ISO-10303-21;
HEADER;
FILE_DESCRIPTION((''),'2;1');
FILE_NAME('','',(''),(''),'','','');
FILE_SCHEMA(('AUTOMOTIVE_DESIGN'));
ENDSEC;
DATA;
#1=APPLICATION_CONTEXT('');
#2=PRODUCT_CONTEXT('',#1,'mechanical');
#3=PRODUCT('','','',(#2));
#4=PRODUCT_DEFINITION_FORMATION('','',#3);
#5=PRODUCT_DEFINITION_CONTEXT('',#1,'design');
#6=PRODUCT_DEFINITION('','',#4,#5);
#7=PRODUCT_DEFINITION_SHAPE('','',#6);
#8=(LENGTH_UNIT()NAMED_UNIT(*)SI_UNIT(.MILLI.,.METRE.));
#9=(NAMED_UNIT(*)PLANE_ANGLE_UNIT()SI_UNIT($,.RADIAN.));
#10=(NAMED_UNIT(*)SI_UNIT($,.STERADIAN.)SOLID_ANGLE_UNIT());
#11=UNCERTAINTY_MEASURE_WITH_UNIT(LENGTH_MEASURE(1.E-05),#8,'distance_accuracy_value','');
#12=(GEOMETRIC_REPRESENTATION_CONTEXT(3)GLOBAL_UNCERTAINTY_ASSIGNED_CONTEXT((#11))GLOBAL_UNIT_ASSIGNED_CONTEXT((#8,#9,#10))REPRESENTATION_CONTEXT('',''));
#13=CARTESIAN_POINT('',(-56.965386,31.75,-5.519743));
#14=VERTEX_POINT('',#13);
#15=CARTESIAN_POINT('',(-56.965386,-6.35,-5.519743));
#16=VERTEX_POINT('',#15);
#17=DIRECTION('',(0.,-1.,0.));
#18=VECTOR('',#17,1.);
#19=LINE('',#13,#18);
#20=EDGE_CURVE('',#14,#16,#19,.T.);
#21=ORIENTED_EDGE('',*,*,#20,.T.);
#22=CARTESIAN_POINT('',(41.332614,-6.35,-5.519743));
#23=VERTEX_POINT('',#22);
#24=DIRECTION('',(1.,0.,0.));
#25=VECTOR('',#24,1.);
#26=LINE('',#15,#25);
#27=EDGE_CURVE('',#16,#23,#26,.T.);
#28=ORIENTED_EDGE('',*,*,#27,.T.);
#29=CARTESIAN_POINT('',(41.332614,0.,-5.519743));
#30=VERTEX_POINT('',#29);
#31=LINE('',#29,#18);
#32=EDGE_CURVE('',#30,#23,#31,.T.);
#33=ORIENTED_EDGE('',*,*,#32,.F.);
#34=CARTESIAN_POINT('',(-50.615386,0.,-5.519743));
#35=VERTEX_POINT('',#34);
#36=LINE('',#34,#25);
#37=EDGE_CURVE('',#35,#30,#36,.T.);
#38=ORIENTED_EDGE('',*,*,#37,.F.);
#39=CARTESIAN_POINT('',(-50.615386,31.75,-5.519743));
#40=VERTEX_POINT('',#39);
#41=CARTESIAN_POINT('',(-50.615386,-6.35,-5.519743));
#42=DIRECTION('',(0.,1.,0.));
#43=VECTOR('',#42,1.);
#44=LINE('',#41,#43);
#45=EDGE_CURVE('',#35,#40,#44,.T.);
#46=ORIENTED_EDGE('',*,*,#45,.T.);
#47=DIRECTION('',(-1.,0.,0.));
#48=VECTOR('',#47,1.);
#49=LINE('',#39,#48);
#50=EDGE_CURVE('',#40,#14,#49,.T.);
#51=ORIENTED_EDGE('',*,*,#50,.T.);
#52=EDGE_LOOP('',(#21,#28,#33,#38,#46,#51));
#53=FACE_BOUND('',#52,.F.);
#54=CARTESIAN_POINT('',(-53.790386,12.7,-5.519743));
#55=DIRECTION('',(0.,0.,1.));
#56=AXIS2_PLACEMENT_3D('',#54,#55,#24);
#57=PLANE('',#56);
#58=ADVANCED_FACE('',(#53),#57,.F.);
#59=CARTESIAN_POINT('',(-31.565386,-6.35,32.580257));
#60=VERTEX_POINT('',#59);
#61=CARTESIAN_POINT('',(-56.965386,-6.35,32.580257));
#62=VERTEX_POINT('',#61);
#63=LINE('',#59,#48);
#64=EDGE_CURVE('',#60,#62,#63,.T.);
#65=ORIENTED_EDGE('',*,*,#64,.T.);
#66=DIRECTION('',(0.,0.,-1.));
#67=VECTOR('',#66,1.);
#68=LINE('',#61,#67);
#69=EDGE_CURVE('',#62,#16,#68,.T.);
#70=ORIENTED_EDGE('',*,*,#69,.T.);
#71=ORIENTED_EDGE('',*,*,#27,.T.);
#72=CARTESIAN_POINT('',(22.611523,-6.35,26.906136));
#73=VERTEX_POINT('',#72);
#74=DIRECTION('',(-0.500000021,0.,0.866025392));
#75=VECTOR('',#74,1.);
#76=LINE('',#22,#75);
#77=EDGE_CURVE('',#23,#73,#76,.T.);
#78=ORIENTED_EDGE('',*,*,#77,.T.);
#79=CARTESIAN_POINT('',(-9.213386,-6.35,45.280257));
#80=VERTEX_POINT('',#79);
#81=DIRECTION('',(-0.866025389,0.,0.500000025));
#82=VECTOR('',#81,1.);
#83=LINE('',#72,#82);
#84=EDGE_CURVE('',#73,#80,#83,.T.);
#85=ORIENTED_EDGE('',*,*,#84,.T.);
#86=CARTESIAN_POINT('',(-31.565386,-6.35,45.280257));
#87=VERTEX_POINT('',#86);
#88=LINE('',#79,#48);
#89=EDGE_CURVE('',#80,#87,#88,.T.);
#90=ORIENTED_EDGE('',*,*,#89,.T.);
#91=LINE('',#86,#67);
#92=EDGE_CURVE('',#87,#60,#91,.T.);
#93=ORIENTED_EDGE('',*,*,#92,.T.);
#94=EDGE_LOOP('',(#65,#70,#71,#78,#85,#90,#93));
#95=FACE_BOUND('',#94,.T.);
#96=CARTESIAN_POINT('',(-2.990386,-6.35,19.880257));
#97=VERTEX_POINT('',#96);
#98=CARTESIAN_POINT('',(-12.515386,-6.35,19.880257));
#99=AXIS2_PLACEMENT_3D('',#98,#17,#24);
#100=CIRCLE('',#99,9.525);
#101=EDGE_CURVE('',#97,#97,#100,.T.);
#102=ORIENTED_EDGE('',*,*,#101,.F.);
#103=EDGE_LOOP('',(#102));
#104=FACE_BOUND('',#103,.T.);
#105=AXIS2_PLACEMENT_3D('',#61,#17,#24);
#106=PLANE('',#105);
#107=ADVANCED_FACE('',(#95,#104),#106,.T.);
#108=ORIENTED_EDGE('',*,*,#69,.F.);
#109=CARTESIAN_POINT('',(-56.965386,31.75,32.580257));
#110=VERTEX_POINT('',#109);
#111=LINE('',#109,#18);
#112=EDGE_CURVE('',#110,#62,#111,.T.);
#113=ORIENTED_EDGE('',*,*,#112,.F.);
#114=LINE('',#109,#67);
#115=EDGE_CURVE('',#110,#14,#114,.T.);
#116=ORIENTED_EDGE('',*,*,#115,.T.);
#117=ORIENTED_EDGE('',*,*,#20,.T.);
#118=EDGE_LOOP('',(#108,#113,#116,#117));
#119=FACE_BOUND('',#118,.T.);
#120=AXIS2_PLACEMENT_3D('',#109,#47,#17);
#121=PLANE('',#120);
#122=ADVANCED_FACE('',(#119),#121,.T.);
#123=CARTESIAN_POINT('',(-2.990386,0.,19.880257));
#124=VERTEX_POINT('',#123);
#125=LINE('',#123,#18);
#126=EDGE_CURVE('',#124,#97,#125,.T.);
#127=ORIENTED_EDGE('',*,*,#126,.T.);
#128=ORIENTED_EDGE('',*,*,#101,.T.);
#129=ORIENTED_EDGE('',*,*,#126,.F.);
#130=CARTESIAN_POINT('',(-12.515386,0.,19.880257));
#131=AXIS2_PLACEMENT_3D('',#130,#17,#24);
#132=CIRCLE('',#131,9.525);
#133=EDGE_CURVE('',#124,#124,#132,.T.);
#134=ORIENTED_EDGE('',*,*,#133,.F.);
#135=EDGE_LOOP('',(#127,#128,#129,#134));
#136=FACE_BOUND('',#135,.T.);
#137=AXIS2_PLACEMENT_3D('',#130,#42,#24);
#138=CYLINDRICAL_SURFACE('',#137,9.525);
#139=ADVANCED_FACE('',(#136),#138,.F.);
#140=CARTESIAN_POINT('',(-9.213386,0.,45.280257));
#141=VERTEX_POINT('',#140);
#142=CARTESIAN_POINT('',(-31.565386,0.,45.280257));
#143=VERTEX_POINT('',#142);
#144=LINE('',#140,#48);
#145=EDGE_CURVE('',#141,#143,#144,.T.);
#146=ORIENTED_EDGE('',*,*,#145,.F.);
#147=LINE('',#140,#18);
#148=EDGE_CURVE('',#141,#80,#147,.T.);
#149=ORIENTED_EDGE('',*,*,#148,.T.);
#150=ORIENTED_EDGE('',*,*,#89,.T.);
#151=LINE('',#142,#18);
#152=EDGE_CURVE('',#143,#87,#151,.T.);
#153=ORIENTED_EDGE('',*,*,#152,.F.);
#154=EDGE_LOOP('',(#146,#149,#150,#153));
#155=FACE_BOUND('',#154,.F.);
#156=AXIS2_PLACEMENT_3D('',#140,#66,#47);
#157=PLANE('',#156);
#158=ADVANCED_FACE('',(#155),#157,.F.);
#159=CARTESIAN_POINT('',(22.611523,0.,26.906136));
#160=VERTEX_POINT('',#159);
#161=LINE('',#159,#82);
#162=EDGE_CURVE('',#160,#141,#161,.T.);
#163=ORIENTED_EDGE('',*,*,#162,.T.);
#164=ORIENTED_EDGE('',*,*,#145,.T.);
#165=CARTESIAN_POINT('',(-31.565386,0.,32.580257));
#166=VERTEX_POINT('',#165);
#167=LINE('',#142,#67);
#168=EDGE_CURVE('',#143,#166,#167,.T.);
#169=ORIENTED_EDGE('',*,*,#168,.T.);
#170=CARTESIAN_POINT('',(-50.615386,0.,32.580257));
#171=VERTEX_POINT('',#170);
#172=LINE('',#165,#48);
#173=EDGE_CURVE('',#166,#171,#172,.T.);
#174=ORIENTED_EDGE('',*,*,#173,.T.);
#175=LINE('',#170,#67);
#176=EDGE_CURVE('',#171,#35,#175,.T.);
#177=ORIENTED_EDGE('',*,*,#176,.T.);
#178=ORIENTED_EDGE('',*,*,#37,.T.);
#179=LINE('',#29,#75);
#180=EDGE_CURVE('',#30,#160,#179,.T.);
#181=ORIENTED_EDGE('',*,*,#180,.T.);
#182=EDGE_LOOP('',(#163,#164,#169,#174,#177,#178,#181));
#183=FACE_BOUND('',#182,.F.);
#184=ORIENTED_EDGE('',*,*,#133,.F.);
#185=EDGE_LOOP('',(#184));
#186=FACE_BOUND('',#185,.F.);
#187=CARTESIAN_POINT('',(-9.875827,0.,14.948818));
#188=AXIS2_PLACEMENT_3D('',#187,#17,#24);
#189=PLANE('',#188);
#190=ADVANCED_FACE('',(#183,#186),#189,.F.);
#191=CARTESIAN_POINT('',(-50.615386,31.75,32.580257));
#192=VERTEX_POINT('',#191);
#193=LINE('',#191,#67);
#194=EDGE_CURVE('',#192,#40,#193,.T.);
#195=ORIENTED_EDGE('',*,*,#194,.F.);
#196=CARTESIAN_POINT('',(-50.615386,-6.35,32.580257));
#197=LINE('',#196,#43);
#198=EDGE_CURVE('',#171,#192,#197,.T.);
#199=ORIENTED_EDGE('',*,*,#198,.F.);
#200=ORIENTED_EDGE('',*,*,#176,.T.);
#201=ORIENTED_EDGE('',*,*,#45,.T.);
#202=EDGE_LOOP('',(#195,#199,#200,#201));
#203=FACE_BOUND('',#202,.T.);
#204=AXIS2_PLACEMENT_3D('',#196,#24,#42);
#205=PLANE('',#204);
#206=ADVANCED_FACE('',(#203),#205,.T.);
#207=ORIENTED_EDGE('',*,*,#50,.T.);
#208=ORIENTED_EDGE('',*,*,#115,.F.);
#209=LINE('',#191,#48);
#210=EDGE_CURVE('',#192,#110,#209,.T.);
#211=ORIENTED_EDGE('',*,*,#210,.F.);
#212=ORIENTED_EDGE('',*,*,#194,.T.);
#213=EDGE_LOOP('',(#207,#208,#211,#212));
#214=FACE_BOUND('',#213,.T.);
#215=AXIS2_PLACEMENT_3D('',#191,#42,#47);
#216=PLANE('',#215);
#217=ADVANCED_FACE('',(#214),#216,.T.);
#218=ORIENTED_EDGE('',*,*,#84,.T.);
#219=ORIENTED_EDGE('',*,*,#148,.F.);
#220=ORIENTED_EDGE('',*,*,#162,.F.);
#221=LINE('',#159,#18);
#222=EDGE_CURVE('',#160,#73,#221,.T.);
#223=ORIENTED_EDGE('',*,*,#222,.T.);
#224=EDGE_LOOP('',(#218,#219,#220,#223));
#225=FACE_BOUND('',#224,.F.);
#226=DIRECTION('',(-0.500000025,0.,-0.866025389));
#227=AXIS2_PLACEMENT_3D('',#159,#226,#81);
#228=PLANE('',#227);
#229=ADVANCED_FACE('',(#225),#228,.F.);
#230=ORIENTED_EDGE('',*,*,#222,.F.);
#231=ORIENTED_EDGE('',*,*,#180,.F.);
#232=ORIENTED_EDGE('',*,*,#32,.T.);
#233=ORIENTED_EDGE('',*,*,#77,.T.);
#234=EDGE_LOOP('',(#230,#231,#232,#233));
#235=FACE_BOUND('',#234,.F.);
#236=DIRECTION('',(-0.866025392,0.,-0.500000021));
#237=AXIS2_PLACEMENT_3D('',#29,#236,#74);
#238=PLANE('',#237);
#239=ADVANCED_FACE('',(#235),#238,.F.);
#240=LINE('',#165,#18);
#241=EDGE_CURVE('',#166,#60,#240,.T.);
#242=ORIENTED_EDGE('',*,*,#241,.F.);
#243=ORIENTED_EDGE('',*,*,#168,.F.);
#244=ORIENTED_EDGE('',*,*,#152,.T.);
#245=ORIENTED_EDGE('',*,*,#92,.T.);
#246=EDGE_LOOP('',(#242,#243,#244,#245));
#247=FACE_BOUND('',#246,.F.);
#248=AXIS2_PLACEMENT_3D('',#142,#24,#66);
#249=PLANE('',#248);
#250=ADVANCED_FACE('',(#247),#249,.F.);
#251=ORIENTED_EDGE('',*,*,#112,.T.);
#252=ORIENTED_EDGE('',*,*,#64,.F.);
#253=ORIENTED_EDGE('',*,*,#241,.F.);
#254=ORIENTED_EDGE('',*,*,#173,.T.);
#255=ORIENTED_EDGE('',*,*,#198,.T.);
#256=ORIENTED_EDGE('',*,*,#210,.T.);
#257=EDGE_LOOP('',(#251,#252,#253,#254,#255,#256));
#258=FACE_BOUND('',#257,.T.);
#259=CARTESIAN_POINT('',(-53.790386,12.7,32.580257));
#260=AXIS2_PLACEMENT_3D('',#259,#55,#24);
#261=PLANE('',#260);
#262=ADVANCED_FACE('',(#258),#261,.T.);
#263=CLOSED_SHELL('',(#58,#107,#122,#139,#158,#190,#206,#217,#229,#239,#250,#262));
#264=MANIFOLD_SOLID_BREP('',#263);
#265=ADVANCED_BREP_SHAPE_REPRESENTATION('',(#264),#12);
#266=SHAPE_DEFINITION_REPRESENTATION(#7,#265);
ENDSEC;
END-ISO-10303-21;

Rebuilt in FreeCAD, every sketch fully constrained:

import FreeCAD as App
import Part
import Sketcher
from FreeCAD import Vector
Q = App.Units.Quantity

doc = App.newDocument("Part")
body = doc.addObject("PartDesign::Body", "Body")

sketch1 = body.newObject("Sketcher::SketchObject", "Sketch")
sketch1.AttachmentSupport = (doc.getObject("XZ_Plane"), [""])
sketch1.MapMode = "FlatFace"
sketch1.addGeometry([
    Part.LineSegment(Vector(-51, -6, 0), Vector(41, -6, 0)),
    Part.LineSegment(Vector(41, -6, 0), Vector(23, 27, 0)),
    Part.LineSegment(Vector(23, 27, 0), Vector(-9, 45, 0)),
    Part.LineSegment(Vector(-9, 45, 0), Vector(-32, 45, 0)),
    Part.LineSegment(Vector(-32, 45, 0), Vector(-32, 33, 0)),
    Part.LineSegment(Vector(-32, 33, 0), Vector(-51, 33, 0)),
    Part.LineSegment(Vector(-51, 33, 0), Vector(-51, -6, 0)),
    Part.Circle(Vector(-13, 20, 0), Vector(0, 0, 1), 10),
], False)
sketch1.addConstraint([
    Sketcher.Constraint("Coincident", 0, 2, 1, 1),
    Sketcher.Constraint("Coincident", 1, 2, 2, 1),
    Sketcher.Constraint("Coincident", 2, 2, 3, 1),
    Sketcher.Constraint("Coincident", 3, 2, 4, 1),
    Sketcher.Constraint("Coincident", 4, 2, 5, 1),
    Sketcher.Constraint("Coincident", 5, 2, 6, 1),
    Sketcher.Constraint("Coincident", 6, 2, 0, 1),
    Sketcher.Constraint("Horizontal", 0),
    Sketcher.Constraint("Horizontal", 3),
    Sketcher.Constraint("Vertical", 4),
    Sketcher.Constraint("Horizontal", 5),
    Sketcher.Constraint("Vertical", 6),
    Sketcher.Constraint("Diameter", 7, Q("0.75 in")),
    Sketcher.Constraint("DistanceY", 4, 2, 4, 1, Q("0.5 in")),
    Sketcher.Constraint("DistanceY", 6, 2, 6, 1, Q("1.5 in")),
    Sketcher.Constraint("Angle", 1, Q("120.000001 deg")),
    Sketcher.Constraint("Angle", 2, Q("149.999998 deg")),
    Sketcher.Constraint("DistanceY", 0, 2, 7, 3, Q("1 in")),
    Sketcher.Constraint("DistanceX", 0, 1, 0, 2, Q("3.62 in")),
    Sketcher.Constraint("DistanceX", 3, 2, 3, 1, Q("0.88 in")),
    Sketcher.Constraint("DistanceX", 5, 2, 5, 1, Q("0.75 in")),
    Sketcher.Constraint("DistanceX", 5, 2, 7, 3, Q("1.5 in")),
    Sketcher.Constraint("DistanceX", 7, 3, -1, 1, 12.515386),
    Sketcher.Constraint("DistanceY", -1, 1, 7, 3, 19.880257),
])
pad1 = body.newObject("PartDesign::Pad", "Pad")
pad1.Profile = sketch1
pad1.Length = Q("0.25 in")

sketch2 = body.newObject("Sketcher::SketchObject", "Sketch001")
sketch2.AttachmentSupport = (doc.getObject("XY_Plane"), [""])
sketch2.MapMode = "FlatFace"
sketch2.AttachmentOffset = App.Placement(Vector(0, 0, 32.580257), App.Rotation())
sketch2.addGeometry([
    Part.LineSegment(Vector(-57, -6, 0), Vector(-51, -6, 0)),
    Part.LineSegment(Vector(-51, -6, 0), Vector(-51, 32, 0)),
    Part.LineSegment(Vector(-51, 32, 0), Vector(-57, 32, 0)),
    Part.LineSegment(Vector(-57, 32, 0), Vector(-57, -6, 0)),
], False)
sketch2.addConstraint([
    Sketcher.Constraint("Coincident", 0, 2, 1, 1),
    Sketcher.Constraint("Coincident", 1, 2, 2, 1),
    Sketcher.Constraint("Coincident", 2, 2, 3, 1),
    Sketcher.Constraint("Coincident", 3, 2, 0, 1),
    Sketcher.Constraint("Horizontal", 0),
    Sketcher.Constraint("Vertical", 1),
    Sketcher.Constraint("Horizontal", 2),
    Sketcher.Constraint("Vertical", 3),
    Sketcher.Constraint("DistanceY", 1, 1, 1, 2, Q("1.5 in")),
    Sketcher.Constraint("DistanceX", 0, 1, 0, 2, Q("0.25 in")),
    Sketcher.Constraint("DistanceY", 0, 2, -1, 1, Q("0.25 in")),
    Sketcher.Constraint("DistanceX", 0, 2, -1, 1, 50.615386),
])
pad2 = body.newObject("PartDesign::Pad", "Pad001")
pad2.Profile = sketch2
pad2.Length = Q("1.5 in")
pad2.Reversed = True

doc.recompute()
